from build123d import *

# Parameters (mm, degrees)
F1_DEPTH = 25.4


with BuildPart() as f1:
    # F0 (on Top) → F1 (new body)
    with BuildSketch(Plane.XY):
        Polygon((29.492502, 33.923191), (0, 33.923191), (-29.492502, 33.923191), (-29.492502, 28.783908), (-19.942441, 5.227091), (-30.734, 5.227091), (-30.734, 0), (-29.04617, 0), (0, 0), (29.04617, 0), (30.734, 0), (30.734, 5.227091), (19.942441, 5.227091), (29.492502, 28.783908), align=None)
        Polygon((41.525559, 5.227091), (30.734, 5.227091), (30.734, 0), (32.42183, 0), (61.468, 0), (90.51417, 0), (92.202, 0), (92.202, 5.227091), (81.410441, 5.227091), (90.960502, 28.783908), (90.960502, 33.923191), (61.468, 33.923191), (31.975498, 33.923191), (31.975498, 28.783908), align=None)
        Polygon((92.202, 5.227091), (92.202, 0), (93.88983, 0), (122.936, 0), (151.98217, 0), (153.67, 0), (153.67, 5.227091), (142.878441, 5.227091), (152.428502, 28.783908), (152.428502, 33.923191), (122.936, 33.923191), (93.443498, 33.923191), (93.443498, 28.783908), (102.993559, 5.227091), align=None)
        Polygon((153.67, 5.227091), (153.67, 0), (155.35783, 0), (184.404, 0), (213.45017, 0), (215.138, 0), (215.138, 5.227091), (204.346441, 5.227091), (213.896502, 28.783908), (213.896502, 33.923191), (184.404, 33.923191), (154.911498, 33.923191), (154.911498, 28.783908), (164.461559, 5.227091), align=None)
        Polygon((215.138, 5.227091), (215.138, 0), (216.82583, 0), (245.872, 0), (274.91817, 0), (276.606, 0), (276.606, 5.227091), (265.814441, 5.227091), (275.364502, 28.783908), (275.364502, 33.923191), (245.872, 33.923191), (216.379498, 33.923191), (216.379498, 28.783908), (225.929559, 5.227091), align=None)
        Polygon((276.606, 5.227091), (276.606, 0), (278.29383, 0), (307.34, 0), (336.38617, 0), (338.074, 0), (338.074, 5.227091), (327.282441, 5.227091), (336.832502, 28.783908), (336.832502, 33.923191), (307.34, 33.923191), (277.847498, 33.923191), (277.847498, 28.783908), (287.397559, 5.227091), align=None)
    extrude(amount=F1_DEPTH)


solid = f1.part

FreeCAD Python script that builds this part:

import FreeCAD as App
import Part
import Sketcher
from FreeCAD import Vector
Q = App.Units.Quantity


def add_polygon(sketch, points):
    """Adds a closed chain of lines whose ends are joined by coincident constraints."""
    first, n = sketch.GeometryCount, len(points)
    for a, b in zip(points, points[1:] + points[:1]):
        sketch.addGeometry(Part.LineSegment(App.Vector(*a, 0), App.Vector(*b, 0)), False)
    for i in range(n):
        sketch.addConstraint(Sketcher.Constraint("Coincident", first + i, 2, first + (i + 1) % n, 1))

doc = App.newDocument("Part")
body = doc.addObject("PartDesign::Body", "Body")

# Sketch on XY plane
sketch1 = body.newObject("Sketcher::SketchObject", "Sketch")
sketch1.AttachmentSupport = (doc.getObject("XY_Plane"), [""])
sketch1.MapMode = "FlatFace"
add_polygon(sketch1, [(29, 34), (-29, 34), (-29, 29), (-20, 5), (-31, 5), (-31, 0), (338, 0), (338, 5), (327, 5), (337, 29), (337, 34), (278, 34), (278, 29), (287, 5), (266, 5), (275, 29), (275, 34), (216, 34), (216, 29), (226, 5), (204, 5), (214, 29), (214, 34), (155, 34), (155, 29), (164, 5), (143, 5), (152, 29), (152, 34), (93, 34), (93, 29), (103, 5), (81, 5), (91, 29), (91, 34), (32, 34), (32, 29), (42, 5), (20, 5), (29, 29)])  # lines 0-39
sketch1.addConstraint([
    Sketcher.Constraint("Horizontal", 0),
    Sketcher.Constraint("Vertical", 1),
    Sketcher.Constraint("Horizontal", 3),
    Sketcher.Constraint("Vertical", 4),
    Sketcher.Constraint("Horizontal", 5),
    Sketcher.Constraint("Vertical", 6),
    Sketcher.Constraint("Horizontal", 7),
    Sketcher.Constraint("Vertical", 9),
    Sketcher.Constraint("Horizontal", 10),
    Sketcher.Constraint("Vertical", 11),
    Sketcher.Constraint("Horizontal", 13),
    Sketcher.Constraint("Vertical", 15),
    Sketcher.Constraint("Horizontal", 16),
    Sketcher.Constraint("Vertical", 17),
    Sketcher.Constraint("Horizontal", 19),
    Sketcher.Constraint("Vertical", 21),
    Sketcher.Constraint("Horizontal", 22),
    Sketcher.Constraint("Vertical", 23),
    Sketcher.Constraint("Horizontal", 25),
    Sketcher.Constraint("Vertical", 27),
    Sketcher.Constraint("Horizontal", 28),
    Sketcher.Constraint("Vertical", 29),
    Sketcher.Constraint("Horizontal", 31),
    Sketcher.Constraint("Vertical", 33),
    Sketcher.Constraint("Horizontal", 34),
    Sketcher.Constraint("Vertical", 35),
    Sketcher.Constraint("Horizontal", 37),
    Sketcher.Constraint("Vertical", 39),
    Sketcher.Constraint("Symmetric", 2, 2, 37, 2, -2),
    Sketcher.Constraint("Symmetric", 1, 2, 38, 2, -2),
    Sketcher.Constraint("PointOnObject", 4, 2, -1),
    Sketcher.Constraint("Parallel", 2, 12),
    Sketcher.Constraint("Parallel", 8, 14),
    Sketcher.Constraint("Parallel", 12, 18),
    Sketcher.Constraint("Parallel", 14, 20),
    Sketcher.Constraint("Parallel", 18, 24),
    Sketcher.Constraint("Parallel", 20, 26),
    Sketcher.Constraint("Parallel", 24, 30),
    Sketcher.Constraint("Parallel", 26, 32),
    Sketcher.Constraint("Parallel", 30, 36),
    Sketcher.Constraint("Parallel", 32, 38),
    Sketcher.Constraint("Horizontal", 3, 2, 6, 2),
    Sketcher.Constraint("Horizontal", 1, 2, 8, 2),
    Sketcher.Constraint("Horizontal", 0, 2, 9, 2),
    Sketcher.Constraint("Horizontal", 8, 2, 11, 2),
    Sketcher.Constraint("Horizontal", 7, 2, 12, 2),
    Sketcher.Constraint("Horizontal", 11, 2, 14, 2),
    Sketcher.Constraint("Horizontal", 10, 2, 15, 2),
    Sketcher.Constraint("Horizontal", 14, 2, 17, 2),
    Sketcher.Constraint("Horizontal", 13, 2, 18, 2),
    Sketcher.Constraint("Horizontal", 17, 2, 20, 2),
    Sketcher.Constraint("Horizontal", 16, 2, 21, 2),
    Sketcher.Constraint("Horizontal", 20, 2, 23, 2),
    Sketcher.Constraint("Horizontal", 19, 2, 24, 2),
    Sketcher.Constraint("Horizontal", 23, 2, 26, 2),
    Sketcher.Constraint("Horizontal", 22, 2, 27, 2),
    Sketcher.Constraint("Horizontal", 26, 2, 29, 2),
    Sketcher.Constraint("Horizontal", 25, 2, 30, 2),
    Sketcher.Constraint("Horizontal", 29, 2, 32, 2),
    Sketcher.Constraint("Horizontal", 28, 2, 33, 2),
    Sketcher.Constraint("Horizontal", 32, 2, 35, 2),
    Sketcher.Constraint("Equal", 3, 7),
    Sketcher.Constraint("Equal", 0, 10),
    Sketcher.Constraint("Equal", 10, 16),
    Sketcher.Constraint("Equal", 13, 19),
    Sketcher.Constraint("Equal", 16, 22),
    Sketcher.Constraint("Equal", 19, 25),
    Sketcher.Constraint("Equal", 22, 28),
    Sketcher.Constraint("Equal", 25, 31),
    Sketcher.Constraint("Equal", 28, 34),
    Sketcher.Constraint("Equal", 31, 37),
    Sketcher.Constraint("DistanceX", 5, 1, 5, 2, Q("14.52 in")),
    Sketcher.Constraint("DistanceX", 3, 2, -1, 1, Q("1.21 in")),
    Sketcher.Constraint("DistanceX", 3, 2, 3, 1, 10.791559),
    Sketcher.Constraint("DistanceY", 4, 2, 4, 1, 5.227091),
    Sketcher.Constraint("DistanceX", -1, 1, 8, 2, 336.832502),
    Sketcher.Constraint("DistanceY", 2, 2, 0, 2, 28.6961),
    Sketcher.Constraint("DistanceY", 1, 2, 1, 1, 5.139283),
])
pad1 = body.newObject("PartDesign::Pad", "Pad")
pad1.Profile = sketch1
pad1.Length = Q("1 in")

doc.recompute()
